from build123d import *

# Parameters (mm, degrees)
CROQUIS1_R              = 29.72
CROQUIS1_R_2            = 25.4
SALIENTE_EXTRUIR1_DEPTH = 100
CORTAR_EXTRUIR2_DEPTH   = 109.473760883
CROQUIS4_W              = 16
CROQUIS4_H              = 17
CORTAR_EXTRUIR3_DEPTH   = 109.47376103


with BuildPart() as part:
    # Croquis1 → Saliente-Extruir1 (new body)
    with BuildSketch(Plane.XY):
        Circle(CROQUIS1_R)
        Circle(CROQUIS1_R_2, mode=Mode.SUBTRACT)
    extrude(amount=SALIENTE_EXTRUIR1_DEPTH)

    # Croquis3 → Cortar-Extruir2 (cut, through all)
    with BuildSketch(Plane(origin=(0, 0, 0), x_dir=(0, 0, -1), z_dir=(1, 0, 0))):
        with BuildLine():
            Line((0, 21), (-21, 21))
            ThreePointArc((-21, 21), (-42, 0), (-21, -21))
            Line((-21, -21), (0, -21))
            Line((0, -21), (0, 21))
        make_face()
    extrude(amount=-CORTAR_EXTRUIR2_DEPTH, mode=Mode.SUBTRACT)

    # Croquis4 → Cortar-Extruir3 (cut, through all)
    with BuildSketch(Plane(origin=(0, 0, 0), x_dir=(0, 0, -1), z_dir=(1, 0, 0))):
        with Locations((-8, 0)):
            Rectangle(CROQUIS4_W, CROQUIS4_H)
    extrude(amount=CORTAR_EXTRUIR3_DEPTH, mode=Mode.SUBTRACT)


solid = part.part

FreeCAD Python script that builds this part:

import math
import FreeCAD as App
import Part
import Sketcher
Q = App.Units.Quantity


def add_polygon(sketch, points):
    """Adds a closed chain of lines whose ends are joined by coincident constraints."""
    first, n = sketch.GeometryCount, len(points)
    for a, b in zip(points, points[1:] + points[:1]):
        sketch.addGeometry(Part.LineSegment(App.Vector(*a, 0), App.Vector(*b, 0)), False)
    for i in range(n):
        sketch.addConstraint(Sketcher.Constraint("Coincident", first + i, 2, first + (i + 1) % n, 1))

doc = App.newDocument("Part")
body = doc.addObject("PartDesign::Body", "Body")

# Sketch on XY plane
sketch1 = body.newObject("Sketcher::SketchObject", "Sketch")
sketch1.AttachmentSupport = (doc.getObject("XY_Plane"), [""])
sketch1.MapMode = "FlatFace"
sketch1.addGeometry([
    Part.Circle(App.Vector(0, 0, 0), App.Vector(0, 0, 1), 29.72),
    Part.Circle(App.Vector(0, 0, 0), App.Vector(0, 0, 1), 25.4),
], False)
sketch1.addConstraint([
    Sketcher.Constraint("Coincident", 0, 3, -1, 1),
    Sketcher.Constraint("Coincident", 1, 3, -1, 1),
    Sketcher.Constraint("Diameter", 1, Q("50.8 mm")),
    Sketcher.Constraint("Diameter", 0, Q("59.44 mm")),
])
pad1 = body.newObject("PartDesign::Pad", "Pad")
pad1.Profile = sketch1
pad1.Length = 100

# Sketch on YZ plane
sketch2 = body.newObject("Sketcher::SketchObject", "Sketch001")
sketch2.AttachmentSupport = (doc.getObject("YZ_Plane"), [""])
sketch2.MapMode = "FlatFace"
sketch2.addGeometry([
    Part.LineSegment(App.Vector(21, 0, 0), App.Vector(21, 21, 0)),
    Part.ArcOfCircle(Part.Circle(App.Vector(0, 21, 0), App.Vector(0, 0, 1), 21), math.radians(0), math.radians(180)),
    Part.LineSegment(App.Vector(-21, 21, 0), App.Vector(-21, 0, 0)),
    Part.LineSegment(App.Vector(-21, 0, 0), App.Vector(21, 0, 0)),
], False)
sketch2.addConstraint([
    Sketcher.Constraint("Tangent", 0, 2, 1, 1),
    Sketcher.Constraint("Tangent", 1, 2, 2, 1),
    Sketcher.Constraint("Coincident", 2, 2, 3, 1),
    Sketcher.Constraint("Coincident", 3, 2, 0, 1),
    Sketcher.Constraint("Vertical", 0),
    Sketcher.Constraint("Vertical", 2),
    Sketcher.Constraint("Horizontal", 3),
    Sketcher.Constraint("Symmetric", 2, 2, 3, 2, -1, 1),
    Sketcher.Constraint("Radius", 1, Q("21 mm")),
    Sketcher.Constraint("DistanceY", 0, 1, 0, 2, Q("21 mm")),
])
pocket1 = body.newObject("PartDesign::Pocket", "Pocket")
pocket1.Profile = sketch2
pocket1.Type = "ThroughAll"

# Sketch on YZ plane
sketch3 = body.newObject("Sketcher::SketchObject", "Sketch002")
sketch3.AttachmentSupport = (doc.getObject("YZ_Plane"), [""])
sketch3.MapMode = "FlatFace"
add_polygon(sketch3, [(8.5, 16), (-8.5, 16), (-8.5, 0), (8.5, 0)])  # lines 0-3
sketch3.addConstraint([
    Sketcher.Constraint("Horizontal", 0),
    Sketcher.Constraint("Vertical", 1),
    Sketcher.Constraint("Horizontal", 2),
    Sketcher.Constraint("Vertical", 3),
    Sketcher.Constraint("Symmetric", 1, 2, 2, 2, -1, 1),
    Sketcher.Constraint("DistanceX", 0, 2, 0, 1, Q("17 mm")),
    Sketcher.Constraint("DistanceY", 1, 2, 1, 1, Q("16 mm")),
])
pocket2 = body.newObject("PartDesign::Pocket", "Pocket001")
pocket2.Profile = sketch3
pocket2.Type = "ThroughAll"
pocket2.Reversed = True

doc.recompute()
